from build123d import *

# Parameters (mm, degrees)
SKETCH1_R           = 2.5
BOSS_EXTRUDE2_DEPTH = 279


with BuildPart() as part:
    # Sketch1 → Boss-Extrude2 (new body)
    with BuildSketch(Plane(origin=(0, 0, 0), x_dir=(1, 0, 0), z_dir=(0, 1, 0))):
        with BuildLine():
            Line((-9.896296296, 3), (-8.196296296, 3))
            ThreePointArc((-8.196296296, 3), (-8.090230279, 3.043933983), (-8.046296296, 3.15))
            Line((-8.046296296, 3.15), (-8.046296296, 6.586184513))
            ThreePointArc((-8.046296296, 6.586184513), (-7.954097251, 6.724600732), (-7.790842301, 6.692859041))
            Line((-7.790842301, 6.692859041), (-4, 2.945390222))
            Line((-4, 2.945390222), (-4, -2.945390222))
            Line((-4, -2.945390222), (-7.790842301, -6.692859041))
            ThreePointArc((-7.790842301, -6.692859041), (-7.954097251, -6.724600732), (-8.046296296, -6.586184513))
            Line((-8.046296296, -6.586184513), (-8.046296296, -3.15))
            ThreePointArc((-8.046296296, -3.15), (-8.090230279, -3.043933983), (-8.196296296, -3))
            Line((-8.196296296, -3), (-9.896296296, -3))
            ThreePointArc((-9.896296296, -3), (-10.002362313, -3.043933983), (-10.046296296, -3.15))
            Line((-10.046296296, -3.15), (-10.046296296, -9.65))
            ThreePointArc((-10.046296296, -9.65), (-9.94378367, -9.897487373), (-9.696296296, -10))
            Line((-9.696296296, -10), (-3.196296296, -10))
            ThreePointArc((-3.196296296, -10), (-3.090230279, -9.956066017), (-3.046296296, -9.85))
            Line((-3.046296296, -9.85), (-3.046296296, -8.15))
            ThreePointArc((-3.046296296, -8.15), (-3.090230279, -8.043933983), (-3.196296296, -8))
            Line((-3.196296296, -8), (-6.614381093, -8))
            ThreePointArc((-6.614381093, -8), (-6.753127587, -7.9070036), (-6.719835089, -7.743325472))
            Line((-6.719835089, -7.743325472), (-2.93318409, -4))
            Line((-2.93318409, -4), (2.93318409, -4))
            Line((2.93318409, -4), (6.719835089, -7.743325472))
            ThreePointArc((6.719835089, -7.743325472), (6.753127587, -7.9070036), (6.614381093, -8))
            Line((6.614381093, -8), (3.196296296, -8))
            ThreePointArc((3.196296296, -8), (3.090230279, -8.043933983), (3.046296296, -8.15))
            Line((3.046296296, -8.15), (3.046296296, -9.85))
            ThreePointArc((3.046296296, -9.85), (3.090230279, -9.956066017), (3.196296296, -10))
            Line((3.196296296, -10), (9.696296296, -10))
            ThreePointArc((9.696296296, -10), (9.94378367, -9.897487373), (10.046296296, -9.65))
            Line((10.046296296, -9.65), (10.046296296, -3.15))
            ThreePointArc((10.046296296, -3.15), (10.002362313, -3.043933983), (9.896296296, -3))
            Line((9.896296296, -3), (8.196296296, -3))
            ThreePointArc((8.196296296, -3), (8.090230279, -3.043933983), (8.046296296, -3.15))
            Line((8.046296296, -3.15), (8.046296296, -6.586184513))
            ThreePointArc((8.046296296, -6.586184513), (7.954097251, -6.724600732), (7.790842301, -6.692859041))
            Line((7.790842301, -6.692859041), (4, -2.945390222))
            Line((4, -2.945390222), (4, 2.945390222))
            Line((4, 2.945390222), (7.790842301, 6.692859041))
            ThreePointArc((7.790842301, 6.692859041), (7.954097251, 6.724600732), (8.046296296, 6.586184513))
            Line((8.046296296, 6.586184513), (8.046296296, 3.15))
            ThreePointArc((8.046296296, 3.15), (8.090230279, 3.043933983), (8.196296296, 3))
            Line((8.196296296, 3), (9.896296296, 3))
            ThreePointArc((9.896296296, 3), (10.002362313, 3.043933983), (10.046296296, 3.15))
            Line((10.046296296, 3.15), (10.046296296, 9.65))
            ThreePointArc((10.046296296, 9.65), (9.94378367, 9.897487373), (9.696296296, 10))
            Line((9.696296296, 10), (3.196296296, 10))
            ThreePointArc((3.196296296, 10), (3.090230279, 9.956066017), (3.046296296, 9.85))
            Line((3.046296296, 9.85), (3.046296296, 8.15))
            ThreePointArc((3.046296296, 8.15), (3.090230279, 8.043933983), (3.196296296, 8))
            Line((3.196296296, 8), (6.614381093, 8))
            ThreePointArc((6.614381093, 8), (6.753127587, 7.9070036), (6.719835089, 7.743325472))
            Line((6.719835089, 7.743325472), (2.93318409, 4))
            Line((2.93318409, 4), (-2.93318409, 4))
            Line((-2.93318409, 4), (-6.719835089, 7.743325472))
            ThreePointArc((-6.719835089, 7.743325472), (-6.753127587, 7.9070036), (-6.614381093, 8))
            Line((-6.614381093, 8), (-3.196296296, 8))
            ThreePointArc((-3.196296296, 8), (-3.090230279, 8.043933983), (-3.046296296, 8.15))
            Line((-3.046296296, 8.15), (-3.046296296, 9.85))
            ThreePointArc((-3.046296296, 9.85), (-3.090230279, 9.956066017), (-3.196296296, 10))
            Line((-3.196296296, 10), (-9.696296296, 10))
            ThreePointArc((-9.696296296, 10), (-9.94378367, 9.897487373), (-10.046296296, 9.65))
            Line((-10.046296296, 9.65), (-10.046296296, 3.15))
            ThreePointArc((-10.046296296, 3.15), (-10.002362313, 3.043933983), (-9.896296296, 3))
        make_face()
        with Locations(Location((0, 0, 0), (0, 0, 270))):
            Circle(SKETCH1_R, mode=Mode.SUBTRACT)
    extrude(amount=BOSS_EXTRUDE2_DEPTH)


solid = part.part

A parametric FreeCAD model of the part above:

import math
import FreeCAD as App
import Part
import Sketcher
from FreeCAD import Vector
Q = App.Units.Quantity

doc = App.newDocument("Part")
body = doc.addObject("PartDesign::Body", "Body")

sketch1 = doc.addObject("Sketcher::SketchObject", "Sketch")
body.addObject(sketch1)
sketch1.AttachmentSupport = (doc.XZ_Plane, [""])
sketch1.MapMode = "FlatFace"
sketch1.addGeometry(Part.LineSegment(Vector(-9.896296, -3, 0), Vector(-8.196296, -3, 0)), False)
sketch1.addGeometry(Part.ArcOfCircle(Part.Circle(Vector(-8.196296, -3.15, 0), Vector(0, 0, 1), 0.15), math.radians(0), math.radians(90)), False)
sketch1.addGeometry(Part.LineSegment(Vector(-8.046296, -3.15, 0), Vector(-8.046296, -6.586185, 0)), False)
sketch1.addGeometry(Part.ArcOfCircle(Part.Circle(Vector(-7.896296, -6.586185, 0), Vector(0, 0, 1), 0.15), math.radians(180), math.radians(314.670338)), False)
sketch1.addGeometry(Part.LineSegment(Vector(-7.790842, -6.692859, 0), Vector(-4, -2.94539, 0)), False)
sketch1.addGeometry(Part.LineSegment(Vector(-4, -2.94539, 0), Vector(-4, 2.94539, 0)), False)
sketch1.addGeometry(Part.LineSegment(Vector(-4, 2.94539, 0), Vector(-7.790842, 6.692859, 0)), False)
sketch1.addGeometry(Part.ArcOfCircle(Part.Circle(Vector(-7.896296, 6.586185, 0), Vector(0, 0, 1), 0.15), math.radians(45.329662), math.radians(180)), False)
sketch1.addGeometry(Part.LineSegment(Vector(-8.046296, 6.586185, 0), Vector(-8.046296, 3.15, 0)), False)
sketch1.addGeometry(Part.ArcOfCircle(Part.Circle(Vector(-8.196296, 3.15, 0), Vector(0, 0, 1), 0.15), math.radians(-90), math.radians(0)), False)
sketch1.addGeometry(Part.LineSegment(Vector(-8.196296, 3, 0), Vector(-9.896296, 3, 0)), False)
sketch1.addGeometry(Part.ArcOfCircle(Part.Circle(Vector(-9.896296, 3.15, 0), Vector(0, 0, 1), 0.15), math.radians(-180), math.radians(-90)), False)
sketch1.addGeometry(Part.LineSegment(Vector(-10.046296, 3.15, 0), Vector(-10.046296, 9.65, 0)), False)
sketch1.addGeometry(Part.ArcOfCircle(Part.Circle(Vector(-9.696296, 9.65, 0), Vector(0, 0, 1), 0.35), math.radians(90), math.radians(180)), False)
sketch1.addGeometry(Part.LineSegment(Vector(-9.696296, 10, 0), Vector(-3.196296, 10, 0)), False)
sketch1.addGeometry(Part.ArcOfCircle(Part.Circle(Vector(-3.196296, 9.85, 0), Vector(0, 0, 1), 0.15), math.radians(0), math.radians(90)), False)
sketch1.addGeometry(Part.LineSegment(Vector(-3.046296, 9.85, 0), Vector(-3.046296, 8.15, 0)), False)
sketch1.addGeometry(Part.ArcOfCircle(Part.Circle(Vector(-3.196296, 8.15, 0), Vector(0, 0, 1), 0.15), math.radians(-90), math.radians(0)), False)
sketch1.addGeometry(Part.LineSegment(Vector(-3.196296, 8, 0), Vector(-6.614381, 8, 0)), False)
sketch1.addGeometry(Part.ArcOfCircle(Part.Circle(Vector(-6.614381, 7.85, 0), Vector(0, 0, 1), 0.15), math.radians(90), math.radians(225.329661)), False)
sketch1.addGeometry(Part.LineSegment(Vector(-6.719835, 7.743325, 0), Vector(-2.933184, 4, 0)), False)
sketch1.addGeometry(Part.LineSegment(Vector(-2.933184, 4, 0), Vector(2.933184, 4, 0)), False)
sketch1.addGeometry(Part.LineSegment(Vector(2.933184, 4, 0), Vector(6.719835, 7.743325, 0)), False)
sketch1.addGeometry(Part.ArcOfCircle(Part.Circle(Vector(6.614381, 7.85, 0), Vector(0, 0, 1), 0.15), math.radians(-45.329661), math.radians(90)), False)
sketch1.addGeometry(Part.LineSegment(Vector(6.614381, 8, 0), Vector(3.196296, 8, 0)), False)
sketch1.addGeometry(Part.ArcOfCircle(Part.Circle(Vector(3.196296, 8.15, 0), Vector(0, 0, 1), 0.15), math.radians(-180), math.radians(-90)), False)
sketch1.addGeometry(Part.LineSegment(Vector(3.046296, 8.15, 0), Vector(3.046296, 9.85, 0)), False)
sketch1.addGeometry(Part.ArcOfCircle(Part.Circle(Vector(3.196296, 9.85, 0), Vector(0, 0, 1), 0.15), math.radians(90), math.radians(180)), False)
sketch1.addGeometry(Part.LineSegment(Vector(3.196296, 10, 0), Vector(9.696296, 10, 0)), False)
sketch1.addGeometry(Part.ArcOfCircle(Part.Circle(Vector(9.696296, 9.65, 0), Vector(0, 0, 1), 0.35), math.radians(0), math.radians(90)), False)
sketch1.addGeometry(Part.LineSegment(Vector(10.046296, 9.65, 0), Vector(10.046296, 3.15, 0)), False)
sketch1.addGeometry(Part.ArcOfCircle(Part.Circle(Vector(9.896296, 3.15, 0), Vector(0, 0, 1), 0.15), math.radians(-90), math.radians(0)), False)
sketch1.addGeometry(Part.LineSegment(Vector(9.896296, 3, 0), Vector(8.196296, 3, 0)), False)
sketch1.addGeometry(Part.ArcOfCircle(Part.Circle(Vector(8.196296, 3.15, 0), Vector(0, 0, 1), 0.15), math.radians(-180), math.radians(-90)), False)
sketch1.addGeometry(Part.LineSegment(Vector(8.046296, 3.15, 0), Vector(8.046296, 6.586185, 0)), False)
sketch1.addGeometry(Part.ArcOfCircle(Part.Circle(Vector(7.896296, 6.586185, 0), Vector(0, 0, 1), 0.15), math.radians(0), math.radians(134.670338)), False)
sketch1.addGeometry(Part.LineSegment(Vector(7.790842, 6.692859, 0), Vector(4, 2.94539, 0)), False)
sketch1.addGeometry(Part.LineSegment(Vector(4, 2.94539, 0), Vector(4, -2.94539, 0)), False)
sketch1.addGeometry(Part.LineSegment(Vector(4, -2.94539, 0), Vector(7.790842, -6.692859, 0)), False)
sketch1.addGeometry(Part.ArcOfCircle(Part.Circle(Vector(7.896296, -6.586185, 0), Vector(0, 0, 1), 0.15), math.radians(-134.670338), math.radians(0)), False)
sketch1.addGeometry(Part.LineSegment(Vector(8.046296, -6.586185, 0), Vector(8.046296, -3.15, 0)), False)
sketch1.addGeometry(Part.ArcOfCircle(Part.Circle(Vector(8.196296, -3.15, 0), Vector(0, 0, 1), 0.15), math.radians(90), math.radians(180)), False)
sketch1.addGeometry(Part.LineSegment(Vector(8.196296, -3, 0), Vector(9.896296, -3, 0)), False)
sketch1.addGeometry(Part.ArcOfCircle(Part.Circle(Vector(9.896296, -3.15, 0), Vector(0, 0, 1), 0.15), math.radians(0), math.radians(90)), False)
sketch1.addGeometry(Part.LineSegment(Vector(10.046296, -3.15, 0), Vector(10.046296, -9.65, 0)), False)
sketch1.addGeometry(Part.ArcOfCircle(Part.Circle(Vector(9.696296, -9.65, 0), Vector(0, 0, 1), 0.35), math.radians(-90), math.radians(0)), False)
sketch1.addGeometry(Part.LineSegment(Vector(9.696296, -10, 0), Vector(3.196296, -10, 0)), False)
sketch1.addGeometry(Part.ArcOfCircle(Part.Circle(Vector(3.196296, -9.85, 0), Vector(0, 0, 1), 0.15), math.radians(-180), math.radians(-90)), False)
sketch1.addGeometry(Part.LineSegment(Vector(3.046296, -9.85, 0), Vector(3.046296, -8.15, 0)), False)
sketch1.addGeometry(Part.ArcOfCircle(Part.Circle(Vector(3.196296, -8.15, 0), Vector(0, 0, 1), 0.15), math.radians(90), math.radians(180)), False)
sketch1.addGeometry(Part.LineSegment(Vector(3.196296, -8, 0), Vector(6.614381, -8, 0)), False)
sketch1.addGeometry(Part.ArcOfCircle(Part.Circle(Vector(6.614381, -7.85, 0), Vector(0, 0, 1), 0.15), math.radians(-90), math.radians(45.329661)), False)
sketch1.addGeometry(Part.LineSegment(Vector(6.719835, -7.743325, 0), Vector(2.933184, -4, 0)), False)
sketch1.addGeometry(Part.LineSegment(Vector(2.933184, -4, 0), Vector(-2.933184, -4, 0)), False)
sketch1.addGeometry(Part.LineSegment(Vector(-2.933184, -4, 0), Vector(-6.719835, -7.743325, 0)), False)
sketch1.addGeometry(Part.ArcOfCircle(Part.Circle(Vector(-6.614381, -7.85, 0), Vector(0, 0, 1), 0.15), math.radians(134.670339), math.radians(270)), False)
sketch1.addGeometry(Part.LineSegment(Vector(-6.614381, -8, 0), Vector(-3.196296, -8, 0)), False)
sketch1.addGeometry(Part.ArcOfCircle(Part.Circle(Vector(-3.196296, -8.15, 0), Vector(0, 0, 1), 0.15), math.radians(0), math.radians(90)), False)
sketch1.addGeometry(Part.LineSegment(Vector(-3.046296, -8.15, 0), Vector(-3.046296, -9.85, 0)), False)
sketch1.addGeometry(Part.ArcOfCircle(Part.Circle(Vector(-3.196296, -9.85, 0), Vector(0, 0, 1), 0.15), math.radians(-90), math.radians(0)), False)
sketch1.addGeometry(Part.LineSegment(Vector(-3.196296, -10, 0), Vector(-9.696296, -10, 0)), False)
sketch1.addGeometry(Part.ArcOfCircle(Part.Circle(Vector(-9.696296, -9.65, 0), Vector(0, 0, 1), 0.35), math.radians(180), math.radians(270)), False)
sketch1.addGeometry(Part.LineSegment(Vector(-10.046296, -9.65, 0), Vector(-10.046296, -3.15, 0)), False)
sketch1.addGeometry(Part.ArcOfCircle(Part.Circle(Vector(-9.896296, -3.15, 0), Vector(0, 0, 1), 0.15), math.radians(90), math.radians(180)), False)
sketch1.addGeometry(Part.Circle(Vector(0, 0, 0), Vector(0, 0, 1), 2.5), False)
sketch1.addConstraint(Sketcher.Constraint("Tangent", 0, 2, 1, 2))
sketch1.addConstraint(Sketcher.Constraint("Tangent", 1, 1, 2, 1))
sketch1.addConstraint(Sketcher.Constraint("Tangent", 2, 2, 3, 1))
sketch1.addConstraint(Sketcher.Constraint("Tangent", 3, 2, 4, 1))
sketch1.addConstraint(Sketcher.Constraint("Coincident", 4, 2, 5, 1))
sketch1.addConstraint(Sketcher.Constraint("Coincident", 5, 2, 6, 1))
sketch1.addConstraint(Sketcher.Constraint("Tangent", 6, 2, 7, 1))
sketch1.addConstraint(Sketcher.Constraint("Tangent", 7, 2, 8, 1))
sketch1.addConstraint(Sketcher.Constraint("Tangent", 8, 2, 9, 2))
sketch1.addConstraint(Sketcher.Constraint("Tangent", 9, 1, 10, 1))
sketch1.addConstraint(Sketcher.Constraint("Tangent", 10, 2, 11, 2))
sketch1.addConstraint(Sketcher.Constraint("Tangent", 11, 1, 12, 1))
sketch1.addConstraint(Sketcher.Constraint("Tangent", 12, 2, 13, 2))
sketch1.addConstraint(Sketcher.Constraint("Tangent", 13, 1, 14, 1))
sketch1.addConstraint(Sketcher.Constraint("Tangent", 14, 2, 15, 2))
sketch1.addConstraint(Sketcher.Constraint("Tangent", 15, 1, 16, 1))
sketch1.addConstraint(Sketcher.Constraint("Tangent", 16, 2, 17, 2))
sketch1.addConstraint(Sketcher.Constraint("Tangent", 17, 1, 18, 1))
sketch1.addConstraint(Sketcher.Constraint("Tangent", 18, 2, 19, 1))
sketch1.addConstraint(Sketcher.Constraint("Tangent", 19, 2, 20, 1))
sketch1.addConstraint(Sketcher.Constraint("Coincident", 20, 2, 21, 1))
sketch1.addConstraint(Sketcher.Constraint("Coincident", 21, 2, 22, 1))
sketch1.addConstraint(Sketcher.Constraint("Tangent", 22, 2, 23, 1))
sketch1.addConstraint(Sketcher.Constraint("Tangent", 23, 2, 24, 1))
sketch1.addConstraint(Sketcher.Constraint("Tangent", 24, 2, 25, 2))
sketch1.addConstraint(Sketcher.Constraint("Tangent", 25, 1, 26, 1))
sketch1.addConstraint(Sketcher.Constraint("Tangent", 26, 2, 27, 2))
sketch1.addConstraint(Sketcher.Constraint("Tangent", 27, 1, 28, 1))
sketch1.addConstraint(Sketcher.Constraint("Tangent", 28, 2, 29, 2))
sketch1.addConstraint(Sketcher.Constraint("Tangent", 29, 1, 30, 1))
sketch1.addConstraint(Sketcher.Constraint("Tangent", 30, 2, 31, 2))
sketch1.addConstraint(Sketcher.Constraint("Tangent", 31, 1, 32, 1))
sketch1.addConstraint(Sketcher.Constraint("Tangent", 32, 2, 33, 2))
sketch1.addConstraint(Sketcher.Constraint("Tangent", 33, 1, 34, 1))
sketch1.addConstraint(Sketcher.Constraint("Tangent", 34, 2, 35, 1))
sketch1.addConstraint(Sketcher.Constraint("Tangent", 35, 2, 36, 1))
sketch1.addConstraint(Sketcher.Constraint("Coincident", 36, 2, 37, 1))
sketch1.addConstraint(Sketcher.Constraint("Coincident", 37, 2, 38, 1))
sketch1.addConstraint(Sketcher.Constraint("Tangent", 38, 2, 39, 1))
sketch1.addConstraint(Sketcher.Constraint("Tangent", 39, 2, 40, 1))
sketch1.addConstraint(Sketcher.Constraint("Tangent", 40, 2, 41, 2))
sketch1.addConstraint(Sketcher.Constraint("Tangent", 41, 1, 42, 1))
sketch1.addConstraint(Sketcher.Constraint("Tangent", 42, 2, 43, 2))
sketch1.addConstraint(Sketcher.Constraint("Tangent", 43, 1, 44, 1))
sketch1.addConstraint(Sketcher.Constraint("Tangent", 44, 2, 45, 2))
sketch1.addConstraint(Sketcher.Constraint("Tangent", 45, 1, 46, 1))
sketch1.addConstraint(Sketcher.Constraint("Tangent", 46, 2, 47, 2))
sketch1.addConstraint(Sketcher.Constraint("Tangent", 47, 1, 48, 1))
sketch1.addConstraint(Sketcher.Constraint("Tangent", 48, 2, 49, 2))
sketch1.addConstraint(Sketcher.Constraint("Tangent", 49, 1, 50, 1))
sketch1.addConstraint(Sketcher.Constraint("Tangent", 50, 2, 51, 1))
sketch1.addConstraint(Sketcher.Constraint("Tangent", 51, 2, 52, 1))
sketch1.addConstraint(Sketcher.Constraint("Coincident", 52, 2, 53, 1))
sketch1.addConstraint(Sketcher.Constraint("Coincident", 53, 2, 54, 1))
sketch1.addConstraint(Sketcher.Constraint("Tangent", 54, 2, 55, 1))
sketch1.addConstraint(Sketcher.Constraint("Tangent", 55, 2, 56, 1))
sketch1.addConstraint(Sketcher.Constraint("Tangent", 56, 2, 57, 2))
sketch1.addConstraint(Sketcher.Constraint("Tangent", 57, 1, 58, 1))
sketch1.addConstraint(Sketcher.Constraint("Tangent", 58, 2, 59, 2))
sketch1.addConstraint(Sketcher.Constraint("Tangent", 59, 1, 60, 1))
sketch1.addConstraint(Sketcher.Constraint("Tangent", 60, 2, 61, 2))
sketch1.addConstraint(Sketcher.Constraint("Tangent", 61, 1, 62, 1))
sketch1.addConstraint(Sketcher.Constraint("Tangent", 62, 2, 63, 2))
sketch1.addConstraint(Sketcher.Constraint("Tangent", 63, 1, 0, 1))
sketch1.addConstraint(Sketcher.Constraint("Horizontal", 0))
sketch1.addConstraint(Sketcher.Constraint("Vertical", 2))
sketch1.addConstraint(Sketcher.Constraint("Vertical", 5))
sketch1.addConstraint(Sketcher.Constraint("Vertical", 8))
sketch1.addConstraint(Sketcher.Constraint("Horizontal", 10))
sketch1.addConstraint(Sketcher.Constraint("Vertical", 12))
sketch1.addConstraint(Sketcher.Constraint("Horizontal", 14))
sketch1.addConstraint(Sketcher.Constraint("Vertical", 16))
sketch1.addConstraint(Sketcher.Constraint("Horizontal", 18))
sketch1.addConstraint(Sketcher.Constraint("Horizontal", 21))
sketch1.addConstraint(Sketcher.Constraint("Horizontal", 24))
sketch1.addConstraint(Sketcher.Constraint("Vertical", 26))
sketch1.addConstraint(Sketcher.Constraint("Horizontal", 28))
sketch1.addConstraint(Sketcher.Constraint("Vertical", 30))
sketch1.addConstraint(Sketcher.Constraint("Horizontal", 32))
sketch1.addConstraint(Sketcher.Constraint("Vertical", 34))
sketch1.addConstraint(Sketcher.Constraint("Vertical", 37))
sketch1.addConstraint(Sketcher.Constraint("Vertical", 40))
sketch1.addConstraint(Sketcher.Constraint("Horizontal", 42))
sketch1.addConstraint(Sketcher.Constraint("Vertical", 44))
sketch1.addConstraint(Sketcher.Constraint("Horizontal", 46))
sketch1.addConstraint(Sketcher.Constraint("Vertical", 48))
sketch1.addConstraint(Sketcher.Constraint("Horizontal", 50))
sketch1.addConstraint(Sketcher.Constraint("Horizontal", 53))
sketch1.addConstraint(Sketcher.Constraint("Horizontal", 56))
sketch1.addConstraint(Sketcher.Constraint("Vertical", 58))
sketch1.addConstraint(Sketcher.Constraint("Horizontal", 60))
sketch1.addConstraint(Sketcher.Constraint("Vertical", 62))
sketch1.addConstraint(Sketcher.Constraint("Coincident", 64, 3, -1, 1))
sketch1.addConstraint(Sketcher.Constraint("Equal", 1, 3))
sketch1.addConstraint(Sketcher.Constraint("Equal", 3, 7))
sketch1.addConstraint(Sketcher.Constraint("Equal", 7, 9))
sketch1.addConstraint(Sketcher.Constraint("Equal", 9, 11))
sketch1.addConstraint(Sketcher.Constraint("Equal", 11, 15))
sketch1.addConstraint(Sketcher.Constraint("Equal", 15, 17))
sketch1.addConstraint(Sketcher.Constraint("Equal", 17, 19))
sketch1.addConstraint(Sketcher.Constraint("Equal", 19, 23))
sketch1.addConstraint(Sketcher.Constraint("Equal", 23, 25))
sketch1.addConstraint(Sketcher.Constraint("Equal", 25, 27))
sketch1.addConstraint(Sketcher.Constraint("Equal", 13, 29))
sketch1.addConstraint(Sketcher.Constraint("Equal", 27, 31))
sketch1.addConstraint(Sketcher.Constraint("Equal", 31, 33))
sketch1.addConstraint(Sketcher.Constraint("Equal", 33, 35))
sketch1.addConstraint(Sketcher.Constraint("Equal", 35, 39))
sketch1.addConstraint(Sketcher.Constraint("Equal", 39, 41))
sketch1.addConstraint(Sketcher.Constraint("Equal", 41, 43))
sketch1.addConstraint(Sketcher.Constraint("Equal", 29, 45))
sketch1.addConstraint(Sketcher.Constraint("Equal", 43, 47))
sketch1.addConstraint(Sketcher.Constraint("Equal", 47, 49))
sketch1.addConstraint(Sketcher.Constraint("Equal", 49, 51))
sketch1.addConstraint(Sketcher.Constraint("Equal", 51, 55))
sketch1.addConstraint(Sketcher.Constraint("Equal", 55, 57))
sketch1.addConstraint(Sketcher.Constraint("Equal", 57, 59))
sketch1.addConstraint(Sketcher.Constraint("Equal", 45, 61))
sketch1.addConstraint(Sketcher.Constraint("Equal", 59, 63))
sketch1.addConstraint(Sketcher.Constraint("Symmetric", 1, 3, 33, 3, -1, 1))
sketch1.addConstraint(Sketcher.Constraint("Symmetric", 7, 3, 39, 3, -1, 1))
sketch1.addConstraint(Sketcher.Constraint("Symmetric", 11, 3, 43, 3, -1, 1))
sketch1.addConstraint(Sketcher.Constraint("Symmetric", 15, 3, 47, 3, -1, 1))
sketch1.addConstraint(Sketcher.Constraint("Symmetric", 19, 3, 51, 3, -1, 1))
sketch1.addConstraint(Sketcher.Constraint("Symmetric", 23, 3, 55, 3, -1, 1))
sketch1.addConstraint(Sketcher.Constraint("Symmetric", 27, 3, 59, 3, -1, 1))
sketch1.addConstraint(Sketcher.Constraint("Symmetric", 3, 2, 35, 2, -1, 1))
sketch1.addConstraint(Sketcher.Constraint("Symmetric", 5, 2, 37, 2, -1, 1))
sketch1.addConstraint(Sketcher.Constraint("Symmetric", 20, 2, 52, 2, -1, 1))
sketch1.addConstraint(Sketcher.Constraint("Symmetric", 19, 3, 23, 3, -2))
sketch1.addConstraint(Sketcher.Constraint("Symmetric", 15, 3, 27, 3, -2))
sketch1.addConstraint(Sketcher.Constraint("Symmetric", 11, 3, 31, 3, -2))
sketch1.addConstraint(Sketcher.Constraint("Symmetric", 7, 3, 35, 3, -2))
sketch1.addConstraint(Sketcher.Constraint("Parallel", 6, 20))
sketch1.addConstraint(Sketcher.Constraint("Parallel", 4, 22))
sketch1.addConstraint(Sketcher.Constraint("Parallel", 36, 54))
sketch1.addConstraint(Sketcher.Constraint("Horizontal", 19, 2, 22, 2))
sketch1.addConstraint(Sketcher.Constraint("Vertical", 13, 3, 61, 3))
sketch1.addConstraint(Sketcher.Constraint("Equal", 60, 12))
sketch1.addConstraint(Sketcher.Constraint("Equal", 42, 16))
sketch1.addConstraint(Sketcher.Constraint("Diameter", 64, Q("5 mm")))
sketch1.addConstraint(Sketcher.Constraint("Radius", 1, Q("0.15 mm")))
sketch1.addConstraint(Sketcher.Constraint("Radius", 13, Q("0.35 mm")))
sketch1.addConstraint(Sketcher.Constraint("DistanceX", 0, 1, 0, 2, Q("1.7 mm")))
sketch1.addConstraint(Sketcher.Constraint("DistanceX", 14, 1, 14, 2, Q("6.5 mm")))
sketch1.addConstraint(Sketcher.Constraint("DistanceY", 0, 2, -1, 1, Q("3 mm")))
sketch1.addConstraint(Sketcher.Constraint("DistanceX", 4, 2, -1, 1, Q("4 mm")))
sketch1.addConstraint(Sketcher.Constraint("DistanceY", -1, 1, 20, 2, Q("4 mm")))
sketch1.addConstraint(Sketcher.Constraint("DistanceX", 21, 1, 21, 2, Q("5.866368 mm")))
sketch1.addConstraint(Sketcher.Constraint("DistanceY", 5, 1, 5, 2, Q("5.89078 mm")))
sketch1.addConstraint(Sketcher.Constraint("Distance", 4, Q("5.330479 mm")))
sketch1.addConstraint(Sketcher.Constraint("DistanceX", 18, 2, 18, 1, Q("3.418085 mm")))
pad1 = doc.addObject("PartDesign::Pad", "Pad")
body.addObject(pad1)
pad1.Profile = sketch1
pad1.Length = 279
pad1.Reversed = True

doc.recompute()
